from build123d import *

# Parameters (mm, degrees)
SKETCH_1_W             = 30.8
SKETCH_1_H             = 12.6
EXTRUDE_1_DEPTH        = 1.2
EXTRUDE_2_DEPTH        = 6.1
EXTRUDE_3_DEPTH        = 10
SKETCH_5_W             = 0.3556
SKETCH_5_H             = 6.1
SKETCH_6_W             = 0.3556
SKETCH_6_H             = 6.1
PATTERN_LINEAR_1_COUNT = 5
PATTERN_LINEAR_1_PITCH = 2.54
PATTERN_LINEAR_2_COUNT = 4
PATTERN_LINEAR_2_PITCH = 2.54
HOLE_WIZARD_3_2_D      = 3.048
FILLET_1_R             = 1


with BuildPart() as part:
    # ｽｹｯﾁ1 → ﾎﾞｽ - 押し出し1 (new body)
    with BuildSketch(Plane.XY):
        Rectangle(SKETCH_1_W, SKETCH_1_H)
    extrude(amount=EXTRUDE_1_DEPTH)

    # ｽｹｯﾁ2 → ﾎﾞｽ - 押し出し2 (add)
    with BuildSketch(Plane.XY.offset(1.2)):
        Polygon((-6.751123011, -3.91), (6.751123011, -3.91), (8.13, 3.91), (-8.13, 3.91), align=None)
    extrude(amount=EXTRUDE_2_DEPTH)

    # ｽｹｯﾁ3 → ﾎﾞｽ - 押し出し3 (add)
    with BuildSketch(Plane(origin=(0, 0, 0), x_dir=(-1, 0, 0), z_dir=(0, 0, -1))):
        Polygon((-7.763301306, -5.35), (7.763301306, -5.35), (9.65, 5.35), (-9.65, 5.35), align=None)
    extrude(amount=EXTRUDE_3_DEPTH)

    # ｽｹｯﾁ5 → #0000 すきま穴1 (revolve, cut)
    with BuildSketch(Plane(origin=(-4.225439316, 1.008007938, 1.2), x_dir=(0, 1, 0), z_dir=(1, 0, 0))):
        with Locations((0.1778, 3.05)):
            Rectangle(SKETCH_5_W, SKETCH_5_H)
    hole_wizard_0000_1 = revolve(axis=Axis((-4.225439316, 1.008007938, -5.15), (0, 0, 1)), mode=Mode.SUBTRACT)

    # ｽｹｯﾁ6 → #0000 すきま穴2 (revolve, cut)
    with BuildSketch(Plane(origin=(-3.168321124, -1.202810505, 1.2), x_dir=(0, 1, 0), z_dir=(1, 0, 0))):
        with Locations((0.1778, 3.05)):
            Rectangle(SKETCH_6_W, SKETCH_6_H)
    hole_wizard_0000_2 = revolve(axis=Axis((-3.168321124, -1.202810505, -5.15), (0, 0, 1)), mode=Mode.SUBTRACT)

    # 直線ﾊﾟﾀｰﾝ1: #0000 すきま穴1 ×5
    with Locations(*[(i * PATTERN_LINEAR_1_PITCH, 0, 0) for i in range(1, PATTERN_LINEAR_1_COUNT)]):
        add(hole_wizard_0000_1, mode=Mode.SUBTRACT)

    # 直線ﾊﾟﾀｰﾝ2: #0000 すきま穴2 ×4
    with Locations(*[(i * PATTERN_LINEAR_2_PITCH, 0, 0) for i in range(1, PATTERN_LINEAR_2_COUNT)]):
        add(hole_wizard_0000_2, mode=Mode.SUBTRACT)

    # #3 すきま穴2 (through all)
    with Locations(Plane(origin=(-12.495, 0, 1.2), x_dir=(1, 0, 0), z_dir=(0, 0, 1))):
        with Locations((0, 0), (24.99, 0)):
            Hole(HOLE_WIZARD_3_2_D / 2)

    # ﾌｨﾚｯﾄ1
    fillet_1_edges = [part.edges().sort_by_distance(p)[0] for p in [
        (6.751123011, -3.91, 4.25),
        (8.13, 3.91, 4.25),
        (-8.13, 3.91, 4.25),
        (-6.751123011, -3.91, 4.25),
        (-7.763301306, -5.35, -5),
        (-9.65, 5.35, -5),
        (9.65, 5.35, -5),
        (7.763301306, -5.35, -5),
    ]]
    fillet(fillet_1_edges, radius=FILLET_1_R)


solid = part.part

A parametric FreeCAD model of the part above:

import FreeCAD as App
import Part
import Sketcher
from FreeCAD import Vector
Q = App.Units.Quantity


def edges_at(feature, points):
    """Names of the edges that pass closest to the given points."""
    edges = feature.Shape.Edges
    near = lambda p: min(range(len(edges)), key=lambda i: edges[i].distToShape(Part.Vertex(*p))[0])
    return sorted({f"Edge{near(p) + 1}" for p in points})

doc = App.newDocument("Part")
body = doc.addObject("PartDesign::Body", "Body")

sketch1 = doc.addObject("Sketcher::SketchObject", "Sketch")
body.addObject(sketch1)
sketch1.AttachmentSupport = (doc.XY_Plane, [""])
sketch1.MapMode = "FlatFace"
sketch1.addGeometry([
    Part.LineSegment(Vector(-15, 6, 0), Vector(-15, -6, 0)),
    Part.LineSegment(Vector(-15, -6, 0), Vector(15, -6, 0)),
    Part.LineSegment(Vector(15, -6, 0), Vector(15, 6, 0)),
    Part.LineSegment(Vector(15, 6, 0), Vector(-15, 6, 0)),
], False)
sketch1.addConstraint([
    Sketcher.Constraint("Coincident", 0, 2, 1, 1),
    Sketcher.Constraint("Coincident", 1, 2, 2, 1),
    Sketcher.Constraint("Coincident", 2, 2, 3, 1),
    Sketcher.Constraint("Coincident", 3, 2, 0, 1),
    Sketcher.Constraint("Vertical", 0),
    Sketcher.Constraint("Horizontal", 1),
    Sketcher.Constraint("Vertical", 2),
    Sketcher.Constraint("Horizontal", 3),
    Sketcher.Constraint("Symmetric", 0, 2, 2, 2, -1, 1),
    Sketcher.Constraint("DistanceX", 1, 1, 1, 2, Q("30.8 mm")),
    Sketcher.Constraint("DistanceY", 0, 2, 0, 1, Q("12.6 mm")),
])
pad1 = doc.addObject("PartDesign::Pad", "Pad")
body.addObject(pad1)
pad1.Profile = sketch1
pad1.Length = 1.2

sketch2 = doc.addObject("Sketcher::SketchObject", "Sketch001")
body.addObject(sketch2)
sketch2.AttachmentSupport = (doc.XY_Plane, [""])
sketch2.MapMode = "FlatFace"
sketch2.AttachmentOffset = App.Placement(Vector(0, 0, 1.2), App.Rotation())
sketch2.addGeometry([
    Part.LineSegment(Vector(-7, -4, 0), Vector(7, -4, 0)),
    Part.LineSegment(Vector(7, -4, 0), Vector(8, 4, 0)),
    Part.LineSegment(Vector(8, 4, 0), Vector(-8, 4, 0)),
    Part.LineSegment(Vector(-8, 4, 0), Vector(-7, -4, 0)),
], False)
sketch2.addConstraint([
    Sketcher.Constraint("Coincident", 0, 2, 1, 1),
    Sketcher.Constraint("Coincident", 1, 2, 2, 1),
    Sketcher.Constraint("Coincident", 2, 2, 3, 1),
    Sketcher.Constraint("Coincident", 3, 2, 0, 1),
    Sketcher.Constraint("Horizontal", 0),
    Sketcher.Constraint("Horizontal", 2),
    Sketcher.Constraint("Equal", 1, 3),
    Sketcher.Constraint("Angle", 1, Q("80 deg")),
    Sketcher.Constraint("DistanceX", 2, 2, 2, 1, Q("16.26 mm")),
    Sketcher.Constraint("DistanceY", 0, 2, -1, 1, Q("3.91 mm")),
    Sketcher.Constraint("DistanceX", -1, 1, 1, 2, Q("8.13 mm")),
    Sketcher.Constraint("DistanceY", -1, 1, 1, 2, Q("3.91 mm")),
])
pad2 = doc.addObject("PartDesign::Pad", "Pad001")
body.addObject(pad2)
pad2.Profile = sketch2
pad2.Length = 6.1

sketch3 = doc.addObject("Sketcher::SketchObject", "Sketch002")
body.addObject(sketch3)
sketch3.AttachmentSupport = (doc.XY_Plane, [""])
sketch3.MapMode = "FlatFace"
sketch3.addGeometry([
    Part.LineSegment(Vector(8, -5, 0), Vector(-8, -5, 0)),
    Part.LineSegment(Vector(-8, -5, 0), Vector(-10, 5, 0)),
    Part.LineSegment(Vector(-10, 5, 0), Vector(10, 5, 0)),
    Part.LineSegment(Vector(10, 5, 0), Vector(8, -5, 0)),
], False)
sketch3.addConstraint([
    Sketcher.Constraint("Coincident", 0, 2, 1, 1),
    Sketcher.Constraint("Coincident", 1, 2, 2, 1),
    Sketcher.Constraint("Coincident", 2, 2, 3, 1),
    Sketcher.Constraint("Coincident", 3, 2, 0, 1),
    Sketcher.Constraint("Horizontal", 0),
    Sketcher.Constraint("Horizontal", 2),
    Sketcher.Constraint("Equal", 1, 3),
    Sketcher.Constraint("Angle", 1, Q("100 deg")),
    Sketcher.Constraint("DistanceX", 2, 1, 2, 2, Q("19.3 mm")),
    Sketcher.Constraint("DistanceY", 0, 2, 1, 2, Q("10.7 mm")),
    Sketcher.Constraint("DistanceY", 0, 2, -1, 1, Q("5.35 mm")),
    Sketcher.Constraint("DistanceX", 1, 2, -1, 1, Q("9.65 mm")),
])
pad3 = doc.addObject("PartDesign::Pad", "Pad002")
body.addObject(pad3)
pad3.Profile = sketch3
pad3.Length = 10
pad3.Reversed = True

sketch4 = doc.addObject("Sketcher::SketchObject", "Sketch003")
body.addObject(sketch4)
sketch4.AttachmentSupport = (doc.YZ_Plane, [""])
sketch4.MapMode = "FlatFace"
sketch4.AttachmentOffset = App.Placement(Vector(0, 0, -4.225439), App.Rotation())
sketch4.addGeometry([
    Part.LineSegment(Vector(1.01, 7.3, 0), Vector(1.01, 1.2, 0)),
    Part.LineSegment(Vector(1.01, 1.2, 0), Vector(1.36, 1.2, 0)),
    Part.LineSegment(Vector(1.36, 1.2, 0), Vector(1.36, 7.3, 0)),
    Part.LineSegment(Vector(1.36, 7.3, 0), Vector(1.01, 7.3, 0)),
], False)
sketch4.addGeometry(Part.LineSegment(Vector(1.01, 1.2, 0), Vector(1.01, 7.3, 0)), True)
sketch4.addConstraint([
    Sketcher.Constraint("Coincident", 0, 2, 1, 1),
    Sketcher.Constraint("Coincident", 1, 2, 2, 1),
    Sketcher.Constraint("Coincident", 2, 2, 3, 1),
    Sketcher.Constraint("Coincident", 3, 2, 0, 1),
    Sketcher.Constraint("Vertical", 0),
    Sketcher.Constraint("Horizontal", 1),
    Sketcher.Constraint("Vertical", 2),
    Sketcher.Constraint("Horizontal", 3),
    Sketcher.Constraint("Vertical", 4),
    Sketcher.Constraint("Coincident", 4, 1, 0, 2),
    Sketcher.Constraint("Horizontal", 2, 2, 4, 2),
    Sketcher.Constraint("DistanceY", 0, 2, 0, 1, Q("6.1 mm")),
    Sketcher.Constraint("DistanceY", -1, 1, 0, 2, Q("1.2 mm")),
    Sketcher.Constraint("DistanceX", 1, 1, 1, 2, Q("0.3556 mm")),
    Sketcher.Constraint("DistanceX", -1, 1, 0, 2, Q("1.008008 mm")),
])
groove = doc.addObject("PartDesign::Groove", "Groove")
body.addObject(groove)
groove.Profile = sketch4
groove.ReferenceAxis = (sketch4, ["Axis0"])
groove.Angle = 360

sketch5 = doc.addObject("Sketcher::SketchObject", "Sketch004")
body.addObject(sketch5)
sketch5.AttachmentSupport = (doc.YZ_Plane, [""])
sketch5.MapMode = "FlatFace"
sketch5.AttachmentOffset = App.Placement(Vector(0, 0, -3.168321), App.Rotation())
sketch5.addGeometry([
    Part.LineSegment(Vector(-1.2, 7.3, 0), Vector(-1.2, 1.2, 0)),
    Part.LineSegment(Vector(-1.2, 1.2, 0), Vector(-0.85, 1.2, 0)),
    Part.LineSegment(Vector(-0.85, 1.2, 0), Vector(-0.85, 7.3, 0)),
    Part.LineSegment(Vector(-0.85, 7.3, 0), Vector(-1.2, 7.3, 0)),
], False)
sketch5.addGeometry(Part.LineSegment(Vector(-1.2, 1.2, 0), Vector(-1.2, 7.3, 0)), True)
sketch5.addConstraint([
    Sketcher.Constraint("Coincident", 0, 2, 1, 1),
    Sketcher.Constraint("Coincident", 1, 2, 2, 1),
    Sketcher.Constraint("Coincident", 2, 2, 3, 1),
    Sketcher.Constraint("Coincident", 3, 2, 0, 1),
    Sketcher.Constraint("Vertical", 0),
    Sketcher.Constraint("Horizontal", 1),
    Sketcher.Constraint("Vertical", 2),
    Sketcher.Constraint("Horizontal", 3),
    Sketcher.Constraint("Vertical", 4),
    Sketcher.Constraint("Coincident", 4, 1, 0, 2),
    Sketcher.Constraint("Horizontal", 2, 2, 4, 2),
    Sketcher.Constraint("DistanceY", 0, 2, 0, 1, Q("6.1 mm")),
    Sketcher.Constraint("DistanceY", -1, 1, 0, 2, Q("1.2 mm")),
    Sketcher.Constraint("DistanceX", 1, 1, 1, 2, Q("0.3556 mm")),
    Sketcher.Constraint("DistanceX", 0, 2, -1, 1, Q("1.202811 mm")),
])
groove2 = doc.addObject("PartDesign::Groove", "Groove001")
body.addObject(groove2)
groove2.Profile = sketch5
groove2.ReferenceAxis = (sketch5, ["Axis0"])
groove2.Angle = 360
doc.recompute()

linearpattern = doc.addObject("PartDesign::LinearPattern", "LinearPattern")
body.addObject(linearpattern)
linearpattern.Originals = [groove]
linearpattern.Direction = (doc.X_Axis, [""])
linearpattern.Mode = "offset"
linearpattern.Offset = 2.54
linearpattern.Occurrences = 5
body.Tip = linearpattern
doc.recompute()

linearpattern2 = doc.addObject("PartDesign::LinearPattern", "LinearPattern001")
body.addObject(linearpattern2)
linearpattern2.Originals = [groove2]
linearpattern2.Direction = (doc.X_Axis, [""])
linearpattern2.Mode = "offset"
linearpattern2.Offset = 2.54
linearpattern2.Occurrences = 4
body.Tip = linearpattern2

sketch6 = doc.addObject("Sketcher::SketchObject", "Sketch005")
body.addObject(sketch6)
sketch6.AttachmentSupport = (doc.XY_Plane, [""])
sketch6.MapMode = "FlatFace"
sketch6.AttachmentOffset = App.Placement(Vector(0, 0, 1.2), App.Rotation())
sketch6.addGeometry([
    Part.Circle(Vector(-12.5, 0, 0), Vector(0, 0, 1), 1.5),
    Part.Circle(Vector(12.5, 0, 0), Vector(0, 0, 1), 1.5),
], False)
sketch6.addConstraint([
    Sketcher.Constraint("Equal", 0, 1),
    Sketcher.Constraint("Symmetric", 0, 3, 1, 3, -1, 1),
    Sketcher.Constraint("PointOnObject", 0, 3, -1),
    Sketcher.Constraint("Diameter", 0, Q("3.048 mm")),
    Sketcher.Constraint("DistanceX", 0, 3, 1, 3, Q("24.99 mm")),
])
doc.recompute()
hole = doc.addObject("PartDesign::Hole", "Hole")
body.addObject(hole)
hole.Profile = sketch6
hole.ThreadType = "None"
hole.Diameter = 3.048
hole.DepthType = "ThroughAll"
doc.recompute()

fillet = doc.addObject("PartDesign::Fillet", "Fillet")
body.addObject(fillet)
fillet.Base = (hole, edges_at(hole, [
    (6.751, -3.91, 4.25),
    (8.13, 3.91, 4.25),
    (-8.13, 3.91, 4.25),
    (-6.751, -3.91, 4.25),
    (-7.763, -5.35, -5),
    (-9.65, 5.35, -5),
    (9.65, 5.35, -5),
    (7.763, -5.35, -5),
]))
fillet.Radius = 1

doc.recompute()
